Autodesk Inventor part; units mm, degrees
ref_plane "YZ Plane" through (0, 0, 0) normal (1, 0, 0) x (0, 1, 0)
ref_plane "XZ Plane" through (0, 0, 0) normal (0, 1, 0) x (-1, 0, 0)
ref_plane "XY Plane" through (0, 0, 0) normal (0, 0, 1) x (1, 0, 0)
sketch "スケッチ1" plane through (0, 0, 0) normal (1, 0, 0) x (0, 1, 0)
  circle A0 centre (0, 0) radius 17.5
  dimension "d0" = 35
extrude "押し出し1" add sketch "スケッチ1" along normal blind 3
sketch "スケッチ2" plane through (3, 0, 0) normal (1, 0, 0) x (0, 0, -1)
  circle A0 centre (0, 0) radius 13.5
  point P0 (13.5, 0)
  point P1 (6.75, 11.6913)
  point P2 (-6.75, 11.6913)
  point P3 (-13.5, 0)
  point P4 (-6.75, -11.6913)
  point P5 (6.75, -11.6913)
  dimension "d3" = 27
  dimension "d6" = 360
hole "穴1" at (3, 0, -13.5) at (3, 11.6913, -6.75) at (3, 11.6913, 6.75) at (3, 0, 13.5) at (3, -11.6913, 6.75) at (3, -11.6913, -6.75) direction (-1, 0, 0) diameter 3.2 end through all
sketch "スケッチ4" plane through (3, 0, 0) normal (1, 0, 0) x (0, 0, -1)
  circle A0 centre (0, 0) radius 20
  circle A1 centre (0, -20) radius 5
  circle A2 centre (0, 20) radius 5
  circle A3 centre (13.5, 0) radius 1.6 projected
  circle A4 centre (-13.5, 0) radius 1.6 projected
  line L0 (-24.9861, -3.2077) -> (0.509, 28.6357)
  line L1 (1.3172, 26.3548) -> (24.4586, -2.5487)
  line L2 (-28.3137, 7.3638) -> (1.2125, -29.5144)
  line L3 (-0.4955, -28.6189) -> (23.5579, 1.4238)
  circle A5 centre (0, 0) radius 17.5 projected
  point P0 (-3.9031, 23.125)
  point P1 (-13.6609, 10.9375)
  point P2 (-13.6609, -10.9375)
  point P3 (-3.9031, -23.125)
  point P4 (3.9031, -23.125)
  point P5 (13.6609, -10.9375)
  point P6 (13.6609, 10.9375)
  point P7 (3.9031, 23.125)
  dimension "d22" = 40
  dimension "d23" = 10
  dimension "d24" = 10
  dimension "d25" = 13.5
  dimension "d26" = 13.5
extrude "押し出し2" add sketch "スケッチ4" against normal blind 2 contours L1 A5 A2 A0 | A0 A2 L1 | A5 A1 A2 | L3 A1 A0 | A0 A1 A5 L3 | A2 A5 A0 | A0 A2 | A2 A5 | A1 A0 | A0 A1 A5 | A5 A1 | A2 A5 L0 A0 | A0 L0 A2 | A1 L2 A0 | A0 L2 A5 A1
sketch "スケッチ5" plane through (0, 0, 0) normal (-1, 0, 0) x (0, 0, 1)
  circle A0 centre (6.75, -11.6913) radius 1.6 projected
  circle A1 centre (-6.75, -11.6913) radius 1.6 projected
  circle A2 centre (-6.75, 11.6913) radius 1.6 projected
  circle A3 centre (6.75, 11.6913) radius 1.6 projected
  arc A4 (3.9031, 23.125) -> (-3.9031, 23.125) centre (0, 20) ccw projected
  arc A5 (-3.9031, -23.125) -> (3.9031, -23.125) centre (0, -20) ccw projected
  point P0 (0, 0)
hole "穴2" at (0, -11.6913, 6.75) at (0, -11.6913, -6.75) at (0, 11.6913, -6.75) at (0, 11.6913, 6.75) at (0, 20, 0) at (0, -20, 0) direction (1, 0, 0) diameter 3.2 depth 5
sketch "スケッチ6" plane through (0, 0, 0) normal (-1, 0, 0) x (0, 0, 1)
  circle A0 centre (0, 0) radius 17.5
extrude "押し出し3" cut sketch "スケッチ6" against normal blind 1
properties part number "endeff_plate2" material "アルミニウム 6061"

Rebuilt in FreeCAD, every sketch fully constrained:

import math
import FreeCAD as App
import Part
import Sketcher
from FreeCAD import Vector

doc = App.newDocument("Part")
body = doc.addObject("PartDesign::Body", "Body")

# Sketch on YZ plane
sketch1 = doc.addObject("Sketcher::SketchObject", "Sketch")
body.addObject(sketch1)
sketch1.AttachmentSupport = (doc.YZ_Plane, [""])
sketch1.MapMode = "FlatFace"
sketch1.addGeometry(Part.Circle(Vector(0, 0, 0), Vector(0, 0, 1), 17.5), False)
sketch1.addConstraint([
    Sketcher.Constraint("Coincident", 0, 3, -1, 1),
    Sketcher.Constraint("Diameter", 0, 35.0),
])
pad1 = doc.addObject("PartDesign::Pad", "Pad")
body.addObject(pad1)
pad1.Profile = sketch1
pad1.Length = 3

# Sketch on YZ plane
sketch2 = doc.addObject("Sketcher::SketchObject", "Sketch001")
body.addObject(sketch2)
sketch2.AttachmentSupport = (doc.YZ_Plane, [""])
sketch2.MapMode = "FlatFace"
sketch2.AttachmentOffset = App.Placement(Vector(0, 0, 3), App.Rotation())
sketch2.addGeometry([
    Part.Circle(Vector(0, -13.5, 0), Vector(0, 0, 1), 1.6),  # 0
    Part.Circle(Vector(11.6913, -6.75, 0), Vector(0, 0, 1), 1.6),  # 1
    Part.Circle(Vector(11.6913, 6.75, 0), Vector(0, 0, 1), 1.6),  # 2
    Part.Circle(Vector(0, 13.5, 0), Vector(0, 0, 1), 1.6),  # 3
    Part.Circle(Vector(-11.6913, 6.75, 0), Vector(0, 0, 1), 1.6),  # 4
    Part.Circle(Vector(-11.6913, -6.75, 0), Vector(0, 0, 1), 1.6),  # 5
], False)
sketch2.addConstraint([
    Sketcher.Constraint("Equal", 0, 1),
    Sketcher.Constraint("Equal", 1, 2),
    Sketcher.Constraint("Equal", 2, 3),
    Sketcher.Constraint("Equal", 3, 4),
    Sketcher.Constraint("Equal", 4, 5),
    Sketcher.Constraint("Symmetric", 0, 3, 3, 3, -1, 1),
    Sketcher.Constraint("Symmetric", 1, 3, 4, 3, -1, 1),
    Sketcher.Constraint("Symmetric", 2, 3, 5, 3, -1, 1),
    Sketcher.Constraint("Symmetric", 2, 3, 4, 3, -2),
    Sketcher.Constraint("PointOnObject", 0, 3, -2),
    Sketcher.Constraint("Diameter", 0, 3.2),
    Sketcher.Constraint("DistanceY", 0, 3, 3, 3, 27.0),
    Sketcher.Constraint("DistanceY", 1, 3, 2, 3, 13.5),
    Sketcher.Constraint("DistanceX", -1, 1, 1, 3, 11.6913),
])
doc.recompute()
hole = doc.addObject("PartDesign::Hole", "Hole")
body.addObject(hole)
hole.Profile = sketch2
hole.ThreadType = "None"
hole.Diameter = 3.2
hole.DepthType = "ThroughAll"

# Sketch on YZ plane
sketch3 = doc.addObject("Sketcher::SketchObject", "Sketch002")
body.addObject(sketch3)
sketch3.AttachmentSupport = (doc.YZ_Plane, [""])
sketch3.MapMode = "FlatFace"
sketch3.AttachmentOffset = App.Placement(Vector(0, 0, 3), App.Rotation())
sketch3.addGeometry([
    Part.LineSegment(Vector(10.93753, -13.660923, 0), Vector(23.125005, -3.903117, 0)),  # 0
    Part.ArcOfCircle(Part.Circle(Vector(20, 0, 0), Vector(0, 0, 1), 5), math.radians(-51.317716), math.radians(51.317839)),  # 1
    Part.LineSegment(Vector(23.124989, 3.903114, 0), Vector(10.937482, 13.660924, 0)),  # 2
    Part.ArcOfCircle(Part.Circle(Vector(0, 0, 0), Vector(0, 0, 1), 17.5), math.radians(51.317839), math.radians(128.682197)),  # 3
    Part.LineSegment(Vector(-10.937501, 13.66093, 0), Vector(-23.124999, 3.903121, 0)),  # 4
    Part.ArcOfCircle(Part.Circle(Vector(-20, 0, 0), Vector(0, 0, 1), 5), math.radians(128.682197), math.radians(231.317823)),  # 5
    Part.LineSegment(Vector(-23.125003, -3.903129, 0), Vector(-10.9375, -13.660939, 0)),  # 6
    Part.ArcOfCircle(Part.Circle(Vector(0, 0, 0), Vector(0, 0, 1), 17.5), math.radians(-128.682175), math.radians(-51.317716)),  # 7
    Part.Circle(Vector(0, -13.5, 0), Vector(0, 0, 1), 1.6),  # 8
    Part.Circle(Vector(0, 13.5, 0), Vector(0, 0, 1), 1.6),  # 9
], False)
sketch3.addConstraint([
    Sketcher.Constraint("Tangent", 0, 2, 1, 1),
    Sketcher.Constraint("Tangent", 1, 2, 2, 1),
    Sketcher.Constraint("Tangent", 2, 2, 3, 1),
    Sketcher.Constraint("Tangent", 3, 2, 4, 1),
    Sketcher.Constraint("Tangent", 4, 2, 5, 1),
    Sketcher.Constraint("Tangent", 5, 2, 6, 1),
    Sketcher.Constraint("Tangent", 6, 2, 7, 1),
    Sketcher.Constraint("Tangent", 7, 2, 0, 1),
    Sketcher.Constraint("Coincident", 3, 3, -1, 1),
    Sketcher.Constraint("Coincident", 7, 3, -1, 1),
    Sketcher.Constraint("Equal", 1, 5),
    Sketcher.Constraint("Equal", 3, 7),
    Sketcher.Constraint("Equal", 8, 9),
    Sketcher.Constraint("Symmetric", 1, 3, 5, 3, -1, 1),
    Sketcher.Constraint("Symmetric", 8, 3, 9, 3, -1, 1),
    Sketcher.Constraint("PointOnObject", 1, 3, -1),
    Sketcher.Constraint("PointOnObject", 8, 3, -2),
    Sketcher.Constraint("Radius", 1, 5.0),
    Sketcher.Constraint("DistanceX", 5, 3, 1, 3, 40.0),
    Sketcher.Constraint("Diameter", 8, 3.2),
    Sketcher.Constraint("DistanceY", 8, 3, -1, 1, 13.5),
    Sketcher.Constraint("Radius", 3, 17.5),
])
pad2 = doc.addObject("PartDesign::Pad", "Pad001")
body.addObject(pad2)
pad2.Profile = sketch3
pad2.Length = 2
pad2.Reversed = True

# Sketch on YZ plane
sketch4 = doc.addObject("Sketcher::SketchObject", "Sketch003")
body.addObject(sketch4)
sketch4.AttachmentSupport = (doc.YZ_Plane, [""])
sketch4.MapMode = "FlatFace"
sketch4.addGeometry([
    Part.Circle(Vector(-11.6913, 6.75, 0), Vector(0, 0, 1), 1.6),  # 0
    Part.Circle(Vector(-11.6913, -6.75, 0), Vector(0, 0, 1), 1.6),  # 1
    Part.Circle(Vector(11.6913, -6.75, 0), Vector(0, 0, 1), 1.6),  # 2
    Part.Circle(Vector(11.6913, 6.75, 0), Vector(0, 0, 1), 1.6),  # 3
    Part.Circle(Vector(20, 0, 0), Vector(0, 0, 1), 1.6),  # 4
    Part.Circle(Vector(-20, 0, 0), Vector(0, 0, 1), 1.6),  # 5
], False)
sketch4.addConstraint([
    Sketcher.Constraint("Equal", 0, 1),
    Sketcher.Constraint("Equal", 1, 2),
    Sketcher.Constraint("Equal", 2, 3),
    Sketcher.Constraint("Equal", 3, 4),
    Sketcher.Constraint("Equal", 4, 5),
    Sketcher.Constraint("Symmetric", 0, 3, 2, 3, -1, 1),
    Sketcher.Constraint("Symmetric", 1, 3, 3, 3, -1, 1),
    Sketcher.Constraint("Symmetric", 4, 3, 5, 3, -1, 1),
    Sketcher.Constraint("Symmetric", 1, 3, 2, 3, -2),
    Sketcher.Constraint("PointOnObject", 4, 3, -1),
    Sketcher.Constraint("Diameter", 0, 3.2),
    Sketcher.Constraint("DistanceX", -1, 1, 4, 3, 20.0),
    Sketcher.Constraint("DistanceY", 1, 3, 0, 3, 13.5),
    Sketcher.Constraint("DistanceX", 0, 3, -1, 1, 11.6913),
])
doc.recompute()
hole2 = doc.addObject("PartDesign::Hole", "Hole001")
body.addObject(hole2)
hole2.Profile = sketch4
hole2.ThreadType = "None"
hole2.Diameter = 3.2
hole2.DepthType = "Dimension"
hole2.Depth = 5
hole2.DrillPoint = "Flat"
hole2.Reversed = True

# Sketch on YZ plane
sketch5 = doc.addObject("Sketcher::SketchObject", "Sketch004")
body.addObject(sketch5)
sketch5.AttachmentSupport = (doc.YZ_Plane, [""])
sketch5.MapMode = "FlatFace"
sketch5.addGeometry(Part.Circle(Vector(0, 0, 0), Vector(0, 0, 1), 17.5), False)
sketch5.addConstraint([
    Sketcher.Constraint("Coincident", 0, 3, -1, 1),
    Sketcher.Constraint("Diameter", 0, 35.0),
])
pocket1 = doc.addObject("PartDesign::Pocket", "Pocket")
body.addObject(pocket1)
pocket1.Profile = sketch5
pocket1.Length = 1
pocket1.Reversed = True

doc.recompute()
